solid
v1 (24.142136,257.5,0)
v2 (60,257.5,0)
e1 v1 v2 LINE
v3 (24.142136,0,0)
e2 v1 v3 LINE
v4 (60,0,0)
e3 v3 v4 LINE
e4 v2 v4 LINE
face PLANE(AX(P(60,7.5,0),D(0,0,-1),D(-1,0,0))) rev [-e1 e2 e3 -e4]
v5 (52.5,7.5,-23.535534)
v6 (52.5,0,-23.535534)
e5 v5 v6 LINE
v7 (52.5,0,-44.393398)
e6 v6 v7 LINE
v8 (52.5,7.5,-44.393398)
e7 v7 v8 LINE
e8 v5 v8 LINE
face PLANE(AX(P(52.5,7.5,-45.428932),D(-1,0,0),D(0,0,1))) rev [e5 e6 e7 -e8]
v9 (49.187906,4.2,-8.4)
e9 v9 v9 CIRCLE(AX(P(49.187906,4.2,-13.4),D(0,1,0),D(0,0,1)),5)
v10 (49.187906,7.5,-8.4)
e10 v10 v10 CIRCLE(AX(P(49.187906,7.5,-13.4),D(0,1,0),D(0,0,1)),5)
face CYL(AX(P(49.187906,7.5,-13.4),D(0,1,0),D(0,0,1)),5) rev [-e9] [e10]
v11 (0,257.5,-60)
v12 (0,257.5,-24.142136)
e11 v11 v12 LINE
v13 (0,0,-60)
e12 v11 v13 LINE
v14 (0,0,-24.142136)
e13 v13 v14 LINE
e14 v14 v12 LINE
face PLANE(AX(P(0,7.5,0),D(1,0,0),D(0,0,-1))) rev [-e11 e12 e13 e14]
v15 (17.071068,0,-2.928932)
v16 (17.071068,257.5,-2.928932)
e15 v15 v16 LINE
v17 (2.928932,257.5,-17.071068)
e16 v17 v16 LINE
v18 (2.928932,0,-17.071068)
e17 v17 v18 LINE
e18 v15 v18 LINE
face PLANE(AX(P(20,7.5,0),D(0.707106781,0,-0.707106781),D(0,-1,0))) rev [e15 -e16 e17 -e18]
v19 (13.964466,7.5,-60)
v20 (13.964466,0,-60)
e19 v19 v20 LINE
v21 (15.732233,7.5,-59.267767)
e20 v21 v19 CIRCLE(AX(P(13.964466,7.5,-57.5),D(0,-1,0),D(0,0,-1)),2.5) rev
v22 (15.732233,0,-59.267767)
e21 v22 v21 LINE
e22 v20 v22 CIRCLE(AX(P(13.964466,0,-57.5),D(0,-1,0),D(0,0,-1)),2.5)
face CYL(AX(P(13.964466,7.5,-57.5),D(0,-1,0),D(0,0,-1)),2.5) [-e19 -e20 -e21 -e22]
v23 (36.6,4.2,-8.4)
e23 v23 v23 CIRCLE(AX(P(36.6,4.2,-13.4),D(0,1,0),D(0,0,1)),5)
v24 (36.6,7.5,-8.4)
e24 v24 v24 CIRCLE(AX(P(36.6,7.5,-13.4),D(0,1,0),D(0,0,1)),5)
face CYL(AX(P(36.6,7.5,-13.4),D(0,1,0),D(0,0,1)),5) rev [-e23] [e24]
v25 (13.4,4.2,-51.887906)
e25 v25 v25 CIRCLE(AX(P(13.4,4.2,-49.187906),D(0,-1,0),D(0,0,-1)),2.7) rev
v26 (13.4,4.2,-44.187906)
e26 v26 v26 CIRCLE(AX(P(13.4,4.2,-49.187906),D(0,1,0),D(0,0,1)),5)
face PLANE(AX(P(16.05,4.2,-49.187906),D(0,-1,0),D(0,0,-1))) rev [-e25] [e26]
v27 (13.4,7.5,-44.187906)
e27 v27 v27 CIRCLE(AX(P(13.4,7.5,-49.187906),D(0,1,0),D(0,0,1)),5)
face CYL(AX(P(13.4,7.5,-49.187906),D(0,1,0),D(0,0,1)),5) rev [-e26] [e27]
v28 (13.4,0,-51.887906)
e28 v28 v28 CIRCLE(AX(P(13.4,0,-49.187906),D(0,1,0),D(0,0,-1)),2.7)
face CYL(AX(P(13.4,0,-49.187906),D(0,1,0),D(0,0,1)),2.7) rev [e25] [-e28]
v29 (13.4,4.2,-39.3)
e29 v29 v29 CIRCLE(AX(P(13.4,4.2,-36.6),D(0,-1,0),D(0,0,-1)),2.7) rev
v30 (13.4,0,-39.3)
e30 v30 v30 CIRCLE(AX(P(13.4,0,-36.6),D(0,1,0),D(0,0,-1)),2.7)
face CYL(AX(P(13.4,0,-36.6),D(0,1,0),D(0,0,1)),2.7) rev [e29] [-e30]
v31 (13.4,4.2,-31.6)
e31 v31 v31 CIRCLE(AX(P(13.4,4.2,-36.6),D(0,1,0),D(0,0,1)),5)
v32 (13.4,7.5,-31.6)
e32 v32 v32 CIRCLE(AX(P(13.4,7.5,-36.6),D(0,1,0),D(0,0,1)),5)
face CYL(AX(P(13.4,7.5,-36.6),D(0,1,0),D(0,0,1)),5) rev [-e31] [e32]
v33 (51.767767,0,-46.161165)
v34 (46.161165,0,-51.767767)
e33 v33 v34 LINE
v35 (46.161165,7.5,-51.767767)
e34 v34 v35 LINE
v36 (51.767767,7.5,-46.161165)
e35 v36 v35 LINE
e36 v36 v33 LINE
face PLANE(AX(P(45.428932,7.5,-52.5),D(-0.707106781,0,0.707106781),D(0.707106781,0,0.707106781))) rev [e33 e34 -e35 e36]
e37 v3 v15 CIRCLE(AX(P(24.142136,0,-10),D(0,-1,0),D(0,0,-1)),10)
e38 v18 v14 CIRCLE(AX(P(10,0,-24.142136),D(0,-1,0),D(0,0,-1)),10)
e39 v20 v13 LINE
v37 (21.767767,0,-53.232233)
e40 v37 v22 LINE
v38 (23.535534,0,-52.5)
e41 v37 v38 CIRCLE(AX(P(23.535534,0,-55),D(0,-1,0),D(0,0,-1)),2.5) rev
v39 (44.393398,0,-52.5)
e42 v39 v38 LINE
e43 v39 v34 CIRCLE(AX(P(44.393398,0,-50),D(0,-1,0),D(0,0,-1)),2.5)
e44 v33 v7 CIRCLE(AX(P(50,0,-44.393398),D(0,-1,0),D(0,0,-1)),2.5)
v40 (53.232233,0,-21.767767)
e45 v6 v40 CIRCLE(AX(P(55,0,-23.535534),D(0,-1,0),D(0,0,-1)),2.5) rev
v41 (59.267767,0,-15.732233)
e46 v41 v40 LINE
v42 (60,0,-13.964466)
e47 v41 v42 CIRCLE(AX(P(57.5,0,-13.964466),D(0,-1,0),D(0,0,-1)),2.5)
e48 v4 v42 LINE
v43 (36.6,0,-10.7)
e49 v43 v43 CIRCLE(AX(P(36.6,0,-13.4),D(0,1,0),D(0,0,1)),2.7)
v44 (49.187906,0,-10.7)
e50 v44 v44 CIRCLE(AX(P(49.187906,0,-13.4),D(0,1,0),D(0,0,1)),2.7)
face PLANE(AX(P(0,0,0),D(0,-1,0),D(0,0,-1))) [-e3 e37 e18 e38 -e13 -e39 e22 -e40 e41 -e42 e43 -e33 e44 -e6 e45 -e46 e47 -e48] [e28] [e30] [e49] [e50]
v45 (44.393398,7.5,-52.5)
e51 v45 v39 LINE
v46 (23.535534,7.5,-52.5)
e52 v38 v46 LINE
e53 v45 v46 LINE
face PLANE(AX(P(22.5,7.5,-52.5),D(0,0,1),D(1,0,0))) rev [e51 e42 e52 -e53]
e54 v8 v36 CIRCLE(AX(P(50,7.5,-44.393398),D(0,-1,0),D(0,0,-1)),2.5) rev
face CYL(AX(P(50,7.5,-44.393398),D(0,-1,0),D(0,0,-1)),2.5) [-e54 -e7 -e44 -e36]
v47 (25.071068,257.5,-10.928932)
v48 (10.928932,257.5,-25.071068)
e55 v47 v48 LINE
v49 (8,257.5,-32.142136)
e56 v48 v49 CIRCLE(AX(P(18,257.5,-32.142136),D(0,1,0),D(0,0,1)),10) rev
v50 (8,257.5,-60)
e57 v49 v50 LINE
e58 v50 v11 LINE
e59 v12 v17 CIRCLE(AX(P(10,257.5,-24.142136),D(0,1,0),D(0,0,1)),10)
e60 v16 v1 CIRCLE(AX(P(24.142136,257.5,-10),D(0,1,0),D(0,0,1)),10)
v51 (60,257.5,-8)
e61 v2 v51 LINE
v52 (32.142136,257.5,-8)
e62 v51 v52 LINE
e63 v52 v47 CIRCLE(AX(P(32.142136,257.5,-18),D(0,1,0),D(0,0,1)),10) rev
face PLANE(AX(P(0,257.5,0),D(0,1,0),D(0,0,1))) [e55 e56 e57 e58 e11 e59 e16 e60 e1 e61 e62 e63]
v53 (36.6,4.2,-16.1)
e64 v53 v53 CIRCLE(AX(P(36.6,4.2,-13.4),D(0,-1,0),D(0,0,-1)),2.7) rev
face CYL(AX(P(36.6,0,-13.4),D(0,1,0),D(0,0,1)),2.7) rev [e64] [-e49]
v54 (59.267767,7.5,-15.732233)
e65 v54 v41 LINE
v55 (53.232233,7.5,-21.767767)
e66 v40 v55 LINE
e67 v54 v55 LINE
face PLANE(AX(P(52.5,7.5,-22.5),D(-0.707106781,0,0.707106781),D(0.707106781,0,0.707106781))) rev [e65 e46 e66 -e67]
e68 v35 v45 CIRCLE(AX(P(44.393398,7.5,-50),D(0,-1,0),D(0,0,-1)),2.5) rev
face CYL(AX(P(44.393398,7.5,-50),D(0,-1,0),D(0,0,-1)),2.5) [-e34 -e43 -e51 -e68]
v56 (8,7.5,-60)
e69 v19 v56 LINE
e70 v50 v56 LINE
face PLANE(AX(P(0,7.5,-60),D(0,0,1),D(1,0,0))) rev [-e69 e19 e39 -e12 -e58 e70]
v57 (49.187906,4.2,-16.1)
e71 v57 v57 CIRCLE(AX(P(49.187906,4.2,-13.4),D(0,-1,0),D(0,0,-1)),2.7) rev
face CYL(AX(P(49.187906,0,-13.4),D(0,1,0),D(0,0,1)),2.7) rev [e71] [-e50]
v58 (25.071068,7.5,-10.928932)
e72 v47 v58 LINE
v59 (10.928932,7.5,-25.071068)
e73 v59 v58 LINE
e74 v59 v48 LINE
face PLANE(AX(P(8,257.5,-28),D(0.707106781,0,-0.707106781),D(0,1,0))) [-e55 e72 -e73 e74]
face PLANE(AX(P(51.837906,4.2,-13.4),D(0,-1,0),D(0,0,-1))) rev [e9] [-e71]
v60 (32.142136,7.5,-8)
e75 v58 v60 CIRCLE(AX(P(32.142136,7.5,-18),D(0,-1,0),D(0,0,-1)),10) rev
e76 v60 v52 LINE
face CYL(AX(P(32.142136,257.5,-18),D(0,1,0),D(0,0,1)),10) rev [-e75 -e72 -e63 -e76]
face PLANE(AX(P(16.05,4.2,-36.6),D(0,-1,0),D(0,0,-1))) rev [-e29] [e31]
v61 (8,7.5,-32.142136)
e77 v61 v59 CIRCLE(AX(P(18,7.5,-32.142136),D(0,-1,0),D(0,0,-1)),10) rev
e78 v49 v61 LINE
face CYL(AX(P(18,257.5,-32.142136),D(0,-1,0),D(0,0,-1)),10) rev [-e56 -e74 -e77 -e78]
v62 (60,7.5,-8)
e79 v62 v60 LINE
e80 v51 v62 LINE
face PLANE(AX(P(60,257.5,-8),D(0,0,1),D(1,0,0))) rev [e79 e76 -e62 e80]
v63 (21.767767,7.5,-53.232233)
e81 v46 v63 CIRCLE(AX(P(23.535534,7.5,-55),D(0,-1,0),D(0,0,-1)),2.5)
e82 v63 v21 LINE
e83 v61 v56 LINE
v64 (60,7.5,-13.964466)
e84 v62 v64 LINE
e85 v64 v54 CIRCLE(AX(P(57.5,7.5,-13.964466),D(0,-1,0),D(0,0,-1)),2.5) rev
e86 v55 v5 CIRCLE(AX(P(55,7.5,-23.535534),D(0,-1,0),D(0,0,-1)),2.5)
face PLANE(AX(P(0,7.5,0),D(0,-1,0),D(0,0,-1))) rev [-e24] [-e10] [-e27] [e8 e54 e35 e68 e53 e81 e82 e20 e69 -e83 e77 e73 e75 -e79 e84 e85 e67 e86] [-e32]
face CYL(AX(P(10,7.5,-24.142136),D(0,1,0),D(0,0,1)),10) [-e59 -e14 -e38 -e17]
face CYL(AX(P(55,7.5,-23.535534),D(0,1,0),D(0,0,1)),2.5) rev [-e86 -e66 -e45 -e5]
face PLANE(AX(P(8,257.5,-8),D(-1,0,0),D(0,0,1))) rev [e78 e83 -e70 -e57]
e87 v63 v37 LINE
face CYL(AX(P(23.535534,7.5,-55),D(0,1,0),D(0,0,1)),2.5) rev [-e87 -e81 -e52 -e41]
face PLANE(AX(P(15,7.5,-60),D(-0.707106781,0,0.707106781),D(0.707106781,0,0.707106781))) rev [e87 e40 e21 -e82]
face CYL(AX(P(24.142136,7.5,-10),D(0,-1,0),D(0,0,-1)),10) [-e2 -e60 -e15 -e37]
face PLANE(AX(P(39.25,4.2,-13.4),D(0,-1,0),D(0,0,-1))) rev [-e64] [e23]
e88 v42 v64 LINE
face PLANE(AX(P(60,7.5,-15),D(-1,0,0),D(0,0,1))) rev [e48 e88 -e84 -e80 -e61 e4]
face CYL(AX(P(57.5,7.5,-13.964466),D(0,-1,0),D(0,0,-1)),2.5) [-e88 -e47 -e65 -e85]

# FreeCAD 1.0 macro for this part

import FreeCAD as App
import Part
import Sketcher


def edges_at(feature, points):
    """Names of the edges that pass closest to the given points."""
    edges = feature.Shape.Edges
    near = lambda p: min(range(len(edges)), key=lambda i: edges[i].distToShape(Part.Vertex(*p))[0])
    return sorted({f"Edge{near(p) + 1}" for p in points})

doc = App.newDocument("Part")
body = doc.addObject("PartDesign::Body", "Body")

# Sketch on XZ plane
sketch1 = body.newObject("Sketcher::SketchObject", "Sketch")
sketch1.AttachmentSupport = (doc.getObject("XZ_Plane"), [""])
sketch1.MapMode = "FlatFace"
sketch1.addGeometry([
    Part.LineSegment(App.Vector(0, -60, 0), App.Vector(0, 0, 0)),  # 0
    Part.LineSegment(App.Vector(0, 0, 0), App.Vector(60, 0, 0)),  # 1
    Part.LineSegment(App.Vector(60, 0, 0), App.Vector(60, -15, 0)),  # 2
    Part.LineSegment(App.Vector(60, -15, 0), App.Vector(52, -22, 0)),  # 3
    Part.LineSegment(App.Vector(52, -22, 0), App.Vector(52, -45, 0)),  # 4
    Part.LineSegment(App.Vector(52, -45, 0), App.Vector(45, -52, 0)),  # 5
    Part.LineSegment(App.Vector(45, -52, 0), App.Vector(22, -52, 0)),  # 6
    Part.LineSegment(App.Vector(22, -52, 0), App.Vector(15, -60, 0)),  # 7
    Part.LineSegment(App.Vector(15, -60, 0), App.Vector(0, -60, 0)),  # 8
], False)
sketch1.addConstraint([
    Sketcher.Constraint("Coincident", 0, 2, 1, 1),
    Sketcher.Constraint("Coincident", 1, 2, 2, 1),
    Sketcher.Constraint("Coincident", 2, 2, 3, 1),
    Sketcher.Constraint("Coincident", 3, 2, 4, 1),
    Sketcher.Constraint("Coincident", 4, 2, 5, 1),
    Sketcher.Constraint("Coincident", 5, 2, 6, 1),
    Sketcher.Constraint("Coincident", 6, 2, 7, 1),
    Sketcher.Constraint("Coincident", 7, 2, 8, 1),
    Sketcher.Constraint("Coincident", 8, 2, 0, 1),
    Sketcher.Constraint("Vertical", 0),
    Sketcher.Constraint("Horizontal", 1),
    Sketcher.Constraint("Vertical", 2),
    Sketcher.Constraint("Vertical", 4),
    Sketcher.Constraint("Horizontal", 6),
    Sketcher.Constraint("Horizontal", 8),
    Sketcher.Constraint("Coincident", 0, 2, -1, 1),
    Sketcher.Constraint("Parallel", 3, 5),
    Sketcher.Constraint("Parallel", 5, 7),
    Sketcher.Constraint("Equal", 1, 0),
    Sketcher.Constraint("Equal", 8, 2),
    Sketcher.Constraint("Equal", 6, 4),
    Sketcher.Constraint("Equal", 3, 7),
    Sketcher.Constraint("DistanceX", 1, 1, 1, 2, 60.0),
    Sketcher.Constraint("DistanceX", 8, 2, 8, 1, 15.0),
    Sketcher.Constraint("Distance", 5, 10.0),
    Sketcher.Constraint("DistanceY", 5, 2, 3, 2, 30.0),
])
pad1 = body.newObject("PartDesign::Pad", "Pad")
pad1.Profile = sketch1
pad1.Length = 7.5
pad1.Reversed = True
doc.recompute()

fillet = body.newObject("PartDesign::Fillet", "Fillet")
fillet.Base = (pad1, edges_at(pad1, [
    (15, 3.75, -60),
    (22.5, 3.75, -52.5),
    (45.429, 3.75, -52.5),
    (52.5, 3.75, -45.429),
    (52.5, 3.75, -22.5),
    (60, 3.75, -15),
]))
fillet.Radius = 2.5

# Sketch on XZ plane
sketch2 = body.newObject("Sketcher::SketchObject", "Sketch001")
sketch2.AttachmentSupport = (doc.getObject("XZ_Plane"), [""])
sketch2.MapMode = "FlatFace"
sketch2.AttachmentOffset = App.Placement(App.Vector(0, 0, -7.5), App.Rotation())
sketch2.addGeometry([
    Part.LineSegment(App.Vector(0, -60, 0), App.Vector(0, 0, 0)),  # 0
    Part.LineSegment(App.Vector(0, 0, 0), App.Vector(60, 0, 0)),  # 1
    Part.LineSegment(App.Vector(60, 0, 0), App.Vector(60, -8, 0)),  # 2
    Part.LineSegment(App.Vector(60, -8, 0), App.Vector(8, -8, 0)),  # 3
    Part.LineSegment(App.Vector(8, -8, 0), App.Vector(8, -60, 0)),  # 4
    Part.LineSegment(App.Vector(8, -60, 0), App.Vector(0, -60, 0)),  # 5
], False)
sketch2.addConstraint([
    Sketcher.Constraint("Coincident", 0, 2, 1, 1),
    Sketcher.Constraint("Coincident", 1, 2, 2, 1),
    Sketcher.Constraint("Coincident", 2, 2, 3, 1),
    Sketcher.Constraint("Coincident", 3, 2, 4, 1),
    Sketcher.Constraint("Coincident", 4, 2, 5, 1),
    Sketcher.Constraint("Coincident", 5, 2, 0, 1),
    Sketcher.Constraint("Vertical", 0),
    Sketcher.Constraint("Horizontal", 1),
    Sketcher.Constraint("Vertical", 2),
    Sketcher.Constraint("Horizontal", 3),
    Sketcher.Constraint("Vertical", 4),
    Sketcher.Constraint("Horizontal", 5),
    Sketcher.Constraint("Coincident", 0, 2, -1, 1),
    Sketcher.Constraint("Equal", 1, 0),
    Sketcher.Constraint("Equal", 5, 2),
    Sketcher.Constraint("DistanceX", 1, 1, 1, 2, 60.0),
    Sketcher.Constraint("DistanceX", 3, 2, 3, 1, 52.0),
])
pad2 = body.newObject("PartDesign::Pad", "Pad001")
pad2.Profile = sketch2
pad2.Length = 250
pad2.Reversed = True
doc.recompute()

chamfer = body.newObject("PartDesign::Chamfer", "Chamfer")
chamfer.Base = (pad2, edges_at(pad2, [(0, 128.75, 0), (8, 132.5, -8)]))
chamfer.Size = 20
doc.recompute()

fillet2 = body.newObject("PartDesign::Fillet", "Fillet001")
fillet2.Base = (chamfer, edges_at(chamfer, [
    (20, 128.75, 0),
    (0, 128.75, -20),
    (8, 132.5, -28),
    (28, 132.5, -8),
]))
fillet2.Radius = 10

# Sketch on XZ plane
sketch3 = body.newObject("Sketcher::SketchObject", "Sketch002")
sketch3.AttachmentSupport = (doc.getObject("XZ_Plane"), [""])
sketch3.MapMode = "FlatFace"
sketch3.AttachmentOffset = App.Placement(App.Vector(0, 0, -7.5), App.Rotation())
sketch3.addGeometry([
    Part.Circle(App.Vector(36.6, -13.4, 0), App.Vector(0, 0, 1), 2.7),
    Part.Circle(App.Vector(49.2, -13.4, 0), App.Vector(0, 0, 1), 2.7),
    Part.Circle(App.Vector(13.4, -49.2, 0), App.Vector(0, 0, 1), 2.7),
    Part.Circle(App.Vector(13.4, -36.6, 0), App.Vector(0, 0, 1), 2.7),
], False)
sketch3.addConstraint([
    Sketcher.Constraint("Equal", 0, 1),
    Sketcher.Constraint("Equal", 1, 2),
    Sketcher.Constraint("Equal", 2, 3),
    Sketcher.Constraint("Horizontal", 0, 3, 1, 3),
    Sketcher.Constraint("Vertical", 2, 3, 3, 3),
    Sketcher.Constraint("Diameter", 0, 5.4),
    Sketcher.Constraint("DistanceX", -1, 1, 0, 3, 36.6),
    Sketcher.Constraint("DistanceY", 0, 3, -1, 1, 13.4),
    Sketcher.Constraint("DistanceX", -1, 1, 2, 3, 13.4),
    Sketcher.Constraint("DistanceY", 3, 3, -1, 1, 36.6),
    Sketcher.Constraint("DistanceX", -1, 1, 1, 3, 49.187906),
    Sketcher.Constraint("DistanceY", 2, 3, -1, 1, 49.187906),
])
pocket1 = body.newObject("PartDesign::Pocket", "Pocket")
pocket1.Profile = sketch3
pocket1.Type = "ThroughAll"
pocket1.Reversed = True

# Sketch on XZ plane
sketch4 = body.newObject("Sketcher::SketchObject", "Sketch003")
sketch4.AttachmentSupport = (doc.getObject("XZ_Plane"), [""])
sketch4.MapMode = "FlatFace"
sketch4.AttachmentOffset = App.Placement(App.Vector(0, 0, -7.5), App.Rotation())
sketch4.addGeometry([
    Part.Circle(App.Vector(13.4, -49.2, 0), App.Vector(0, 0, 1), 2.6),
    Part.Circle(App.Vector(13.4, -36.6, 0), App.Vector(0, 0, 1), 2.6),
    Part.Circle(App.Vector(36.6, -13.4, 0), App.Vector(0, 0, 1), 2.6),
    Part.Circle(App.Vector(49.2, -13.4, 0), App.Vector(0, 0, 1), 2.6),
], False)
sketch4.addConstraint([
    Sketcher.Constraint("Equal", 0, 1),
    Sketcher.Constraint("Equal", 1, 2),
    Sketcher.Constraint("Equal", 2, 3),
    Sketcher.Constraint("Horizontal", 2, 3, 3, 3),
    Sketcher.Constraint("Vertical", 0, 3, 1, 3),
    Sketcher.Constraint("Diameter", 0, 5.3),
    Sketcher.Constraint("DistanceX", -1, 1, 0, 3, 13.4),
    Sketcher.Constraint("DistanceY", 1, 3, -1, 1, 36.6),
    Sketcher.Constraint("DistanceX", -1, 1, 2, 3, 36.6),
    Sketcher.Constraint("DistanceY", 2, 3, -1, 1, 13.4),
    Sketcher.Constraint("DistanceY", 0, 3, -1, 1, 49.187906),
    Sketcher.Constraint("DistanceX", -1, 1, 3, 3, 49.187906),
])
doc.recompute()
hole = body.newObject("PartDesign::Hole", "Hole")
hole.Profile = sketch4
hole.ThreadType = "None"
hole.Diameter = 5.3
hole.DepthType = "ThroughAll"
hole.HoleCutType = "Counterbore"
hole.HoleCutDiameter = 10
hole.HoleCutDepth = 3.3
hole.Reversed = True

doc.recompute()
